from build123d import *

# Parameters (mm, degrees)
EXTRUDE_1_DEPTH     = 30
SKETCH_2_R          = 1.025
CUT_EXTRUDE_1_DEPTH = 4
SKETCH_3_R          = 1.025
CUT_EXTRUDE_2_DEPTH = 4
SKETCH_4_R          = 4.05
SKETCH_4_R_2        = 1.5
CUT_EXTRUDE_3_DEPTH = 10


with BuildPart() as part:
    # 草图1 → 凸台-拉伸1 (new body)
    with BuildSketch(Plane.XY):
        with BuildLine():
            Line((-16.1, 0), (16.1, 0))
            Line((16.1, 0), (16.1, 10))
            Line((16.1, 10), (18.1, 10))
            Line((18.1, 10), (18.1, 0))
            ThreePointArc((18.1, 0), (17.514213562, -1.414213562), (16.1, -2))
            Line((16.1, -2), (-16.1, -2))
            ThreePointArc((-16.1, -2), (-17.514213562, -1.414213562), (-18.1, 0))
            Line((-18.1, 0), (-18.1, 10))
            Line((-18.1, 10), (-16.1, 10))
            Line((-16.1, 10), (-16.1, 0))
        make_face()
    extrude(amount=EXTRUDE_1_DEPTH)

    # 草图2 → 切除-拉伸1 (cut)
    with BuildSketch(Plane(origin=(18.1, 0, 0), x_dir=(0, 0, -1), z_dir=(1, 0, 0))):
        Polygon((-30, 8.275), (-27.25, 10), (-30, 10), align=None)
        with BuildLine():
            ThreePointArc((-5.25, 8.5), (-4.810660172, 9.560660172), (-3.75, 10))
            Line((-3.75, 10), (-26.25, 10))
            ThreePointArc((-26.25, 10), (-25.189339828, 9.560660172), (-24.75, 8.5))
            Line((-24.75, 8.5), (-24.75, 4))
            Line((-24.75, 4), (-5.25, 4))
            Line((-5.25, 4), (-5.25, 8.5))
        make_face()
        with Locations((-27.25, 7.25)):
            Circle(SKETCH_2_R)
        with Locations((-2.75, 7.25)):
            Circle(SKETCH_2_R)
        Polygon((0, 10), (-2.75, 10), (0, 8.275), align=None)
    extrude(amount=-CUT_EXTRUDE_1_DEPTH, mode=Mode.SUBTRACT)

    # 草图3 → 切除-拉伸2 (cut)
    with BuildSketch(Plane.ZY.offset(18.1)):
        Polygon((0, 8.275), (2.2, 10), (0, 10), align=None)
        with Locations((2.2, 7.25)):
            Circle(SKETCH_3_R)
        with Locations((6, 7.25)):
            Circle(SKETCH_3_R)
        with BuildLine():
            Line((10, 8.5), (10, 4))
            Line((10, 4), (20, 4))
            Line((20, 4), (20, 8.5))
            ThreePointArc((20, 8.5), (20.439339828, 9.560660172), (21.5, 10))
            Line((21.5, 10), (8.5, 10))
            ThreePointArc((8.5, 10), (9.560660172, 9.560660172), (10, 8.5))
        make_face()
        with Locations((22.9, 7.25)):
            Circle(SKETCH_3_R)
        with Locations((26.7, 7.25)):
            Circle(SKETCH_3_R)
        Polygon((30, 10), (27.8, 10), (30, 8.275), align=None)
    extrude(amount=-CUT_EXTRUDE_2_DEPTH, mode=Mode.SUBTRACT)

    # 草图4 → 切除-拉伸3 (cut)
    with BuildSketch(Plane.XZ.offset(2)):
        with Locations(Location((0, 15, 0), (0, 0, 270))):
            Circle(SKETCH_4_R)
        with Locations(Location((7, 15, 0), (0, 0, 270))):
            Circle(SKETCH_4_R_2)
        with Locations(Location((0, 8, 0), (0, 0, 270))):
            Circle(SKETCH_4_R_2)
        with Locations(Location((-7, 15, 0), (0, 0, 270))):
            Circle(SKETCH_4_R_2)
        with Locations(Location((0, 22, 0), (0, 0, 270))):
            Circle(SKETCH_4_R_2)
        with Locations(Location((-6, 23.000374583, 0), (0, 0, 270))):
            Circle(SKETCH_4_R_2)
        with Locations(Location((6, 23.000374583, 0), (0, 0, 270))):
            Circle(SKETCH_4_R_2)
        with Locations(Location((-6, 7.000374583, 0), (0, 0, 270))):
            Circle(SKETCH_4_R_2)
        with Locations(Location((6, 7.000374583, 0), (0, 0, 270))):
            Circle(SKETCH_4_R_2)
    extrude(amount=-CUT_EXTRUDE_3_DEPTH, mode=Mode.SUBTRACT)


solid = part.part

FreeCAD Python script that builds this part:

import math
import FreeCAD as App
import Part
import Sketcher

V = App.Vector
Q = App.Units.Quantity


def add_polygon(sketch, points):
    """Adds a closed chain of lines whose ends are joined by coincident constraints."""
    first, n = sketch.GeometryCount, len(points)
    for a, b in zip(points, points[1:] + points[:1]):
        sketch.addGeometry(Part.LineSegment(App.Vector(*a, 0), App.Vector(*b, 0)), False)
    for i in range(n):
        sketch.addConstraint(Sketcher.Constraint("Coincident", first + i, 2, first + (i + 1) % n, 1))

doc = App.newDocument("Part")
params = doc.addObject("Spreadsheet::Sheet", "Params")
for row, (alias, value) in enumerate([
    ("sketch1_radius", "2 mm"),
    ("sketch1_height", "10 mm"),
    ("sketch1_width", "32.2 mm"),
    ("pad1_length", "30 mm"),
    ("sketch2_radius", "1.5 mm"),
    ("sketch2_diameter", "2.05 mm"),
    ("sketch2_width", "4.5 mm"),
    ("sketch2_height", "22.5 mm"),
    ("pocket1_length", "4 mm"),
    ("sketch3_radius", "1.5 mm"),
    ("sketch3_diameter", "2.05 mm"),
    ("sketch3_height", "10 mm"),
    ("sketch3_width", "4.5 mm"),
    ("sketch3_height2", "2.2 mm"),
    ("pocket2_length", "4 mm"),
    ("sketch4_diameter", "3 mm"),
    ("sketch4_diameter2", "8.1 mm"),
    ("pocket3_length", "10 mm"),
], start=1):
    params.set(f"A{row}", alias)
    params.set(f"B{row}", "=" + value)
    params.setAlias(f"B{row}", alias)

body = doc.addObject("PartDesign::Body", "Body")

sketch1 = doc.addObject("Sketcher::SketchObject", "Sketch")
body.addObject(sketch1)
sketch1.AttachmentSupport = (doc.XY_Plane, [""])
sketch1.MapMode = "FlatFace"
sketch1.addGeometry(Part.LineSegment(V(16.1, 0, 0), V(-16.1, 0, 0)), False)
sketch1.addGeometry(Part.LineSegment(V(-16.1, 0, 0), V(-16.1, 10, 0)), False)
sketch1.addGeometry(Part.LineSegment(V(-16.1, 10, 0), V(-18.1, 10, 0)), False)
sketch1.addGeometry(Part.LineSegment(V(-18.1, 10, 0), V(-18.1, 0, 0)), False)
sketch1.addGeometry(Part.ArcOfCircle(Part.Circle(V(-16.1, 0, 0), V(0, 0, 1), 2), math.radians(-180), math.radians(-90)), False)
sketch1.addGeometry(Part.LineSegment(V(-16.1, -2, 0), V(16.1, -2, 0)), False)
sketch1.addGeometry(Part.ArcOfCircle(Part.Circle(V(16.1, 0, 0), V(0, 0, 1), 2), math.radians(-90), math.radians(0)), False)
sketch1.addGeometry(Part.LineSegment(V(18.1, 0, 0), V(18.1, 10, 0)), False)
sketch1.addGeometry(Part.LineSegment(V(18.1, 10, 0), V(16.1, 10, 0)), False)
sketch1.addGeometry(Part.LineSegment(V(16.1, 10, 0), V(16.1, 0, 0)), False)
sketch1.addConstraint(Sketcher.Constraint("Coincident", 0, 2, 1, 1))
sketch1.addConstraint(Sketcher.Constraint("Coincident", 1, 2, 2, 1))
sketch1.addConstraint(Sketcher.Constraint("Coincident", 2, 2, 3, 1))
sketch1.addConstraint(Sketcher.Constraint("Tangent", 3, 2, 4, 1))
sketch1.addConstraint(Sketcher.Constraint("Tangent", 4, 2, 5, 1))
sketch1.addConstraint(Sketcher.Constraint("Tangent", 5, 2, 6, 1))
sketch1.addConstraint(Sketcher.Constraint("Tangent", 6, 2, 7, 1))
sketch1.addConstraint(Sketcher.Constraint("Coincident", 7, 2, 8, 1))
sketch1.addConstraint(Sketcher.Constraint("Coincident", 8, 2, 9, 1))
sketch1.addConstraint(Sketcher.Constraint("Coincident", 9, 2, 0, 1))
sketch1.addConstraint(Sketcher.Constraint("Horizontal", 0))
sketch1.addConstraint(Sketcher.Constraint("Vertical", 1))
sketch1.addConstraint(Sketcher.Constraint("Horizontal", 2))
sketch1.addConstraint(Sketcher.Constraint("Vertical", 3))
sketch1.addConstraint(Sketcher.Constraint("Horizontal", 5))
sketch1.addConstraint(Sketcher.Constraint("Vertical", 7))
sketch1.addConstraint(Sketcher.Constraint("Horizontal", 8))
sketch1.addConstraint(Sketcher.Constraint("Vertical", 9))
sketch1.addConstraint(Sketcher.Constraint("Coincident", 0, 2, 4, 3))
sketch1.addConstraint(Sketcher.Constraint("Coincident", 9, 2, 6, 3))
sketch1.addConstraint(Sketcher.Constraint("Symmetric", 4, 3, 6, 3, -1, 1))
sketch1.addConstraint(Sketcher.Constraint("Horizontal", 2, 2, 7, 2))
sketch1.addConstraint(Sketcher.Constraint("Radius", 4, Q("2 mm")))
sketch1.addConstraint(Sketcher.Constraint("DistanceY", 1, 1, 1, 2, Q("10 mm")))
sketch1.addConstraint(Sketcher.Constraint("DistanceX", 0, 2, 0, 1, Q("32.2 mm")))
sketch1.setExpression("Constraints[22]", "Params.sketch1_radius")
sketch1.setExpression("Constraints[23]", "Params.sketch1_height")
sketch1.setExpression("Constraints[24]", "Params.sketch1_width")
pad1 = doc.addObject("PartDesign::Pad", "Pad")
body.addObject(pad1)
pad1.Profile = sketch1
pad1.setExpression("Length", "Params.pad1_length")

sketch2 = doc.addObject("Sketcher::SketchObject", "Sketch001")
body.addObject(sketch2)
sketch2.AttachmentSupport = (doc.YZ_Plane, [""])
sketch2.MapMode = "FlatFace"
sketch2.AttachmentOffset = App.Placement(V(0, 0, 18.1), App.Rotation())
add_polygon(sketch2, [(8.3, 30), (10, 27.2), (10, 30)])
sketch2.addGeometry(Part.ArcOfCircle(Part.Circle(V(8.5, 3.8, 0), V(0, 0, 1), 1.5), math.radians(0), math.radians(90)), False)
sketch2.addGeometry(Part.LineSegment(V(10, 3.8, 0), V(10, 26.2, 0)), False)
sketch2.addGeometry(Part.ArcOfCircle(Part.Circle(V(8.5, 26.2, 0), V(0, 0, 1), 1.5), math.radians(-90), math.radians(0)), False)
sketch2.addGeometry(Part.LineSegment(V(8.5, 24.8, 0), V(4, 24.8, 0)), False)
sketch2.addGeometry(Part.LineSegment(V(4, 24.8, 0), V(4, 5.2, 0)), False)
sketch2.addGeometry(Part.LineSegment(V(4, 5.2, 0), V(8.5, 5.2, 0)), False)
sketch2.addGeometry(Part.Circle(V(7.2, 27.2, 0), V(0, 0, 1), 1), False)
sketch2.addGeometry(Part.Circle(V(7.2, 2.8, 0), V(0, 0, 1), 1), False)
add_polygon(sketch2, [(10, 0), (10, 2.8), (8.3, 0)])
sketch2.addConstraint(Sketcher.Constraint("Tangent", 3, 1, 4, 1))
sketch2.addConstraint(Sketcher.Constraint("Tangent", 4, 2, 5, 2))
sketch2.addConstraint(Sketcher.Constraint("Tangent", 5, 1, 6, 1))
sketch2.addConstraint(Sketcher.Constraint("Coincident", 6, 2, 7, 1))
sketch2.addConstraint(Sketcher.Constraint("Coincident", 7, 2, 8, 1))
sketch2.addConstraint(Sketcher.Constraint("Tangent", 8, 2, 3, 2))
sketch2.addConstraint(Sketcher.Constraint("Vertical", 1))
sketch2.addConstraint(Sketcher.Constraint("Horizontal", 2))
sketch2.addConstraint(Sketcher.Constraint("Vertical", 4))
sketch2.addConstraint(Sketcher.Constraint("Horizontal", 6))
sketch2.addConstraint(Sketcher.Constraint("Vertical", 7))
sketch2.addConstraint(Sketcher.Constraint("Horizontal", 8))
sketch2.addConstraint(Sketcher.Constraint("Vertical", 11))
sketch2.addConstraint(Sketcher.Constraint("Horizontal", 13))
sketch2.addConstraint(Sketcher.Constraint("Equal", 3, 5))
sketch2.addConstraint(Sketcher.Constraint("Equal", 9, 10))
sketch2.addConstraint(Sketcher.Constraint("PointOnObject", 12, 2, -1))
sketch2.addConstraint(Sketcher.Constraint("Horizontal", 9, 3, 0, 2))
sketch2.addConstraint(Sketcher.Constraint("Horizontal", 10, 3, 11, 2))
sketch2.addConstraint(Sketcher.Constraint("Vertical", 9, 3, 10, 3))
sketch2.addConstraint(Sketcher.Constraint("Vertical", 1, 2, 3, 1))
sketch2.addConstraint(Sketcher.Constraint("Vertical", 4, 2, 11, 2))
sketch2.addConstraint(Sketcher.Constraint("Vertical", 2, 2, 12, 2))
sketch2.addConstraint(Sketcher.Constraint("Equal", 1, 11))
sketch2.addConstraint(Sketcher.Constraint("Radius", 3, Q("1.5 mm")))
sketch2.addConstraint(Sketcher.Constraint("Diameter", 9, Q("2.05 mm")))
sketch2.addConstraint(Sketcher.Constraint("DistanceX", 6, 2, 6, 1, Q("4.5 mm")))
sketch2.addConstraint(Sketcher.Constraint("DistanceY", 4, 1, 4, 2, Q("22.5 mm")))
sketch2.addConstraint(Sketcher.Constraint("DistanceX", -1, 1, 0, 2, Q("10 mm")))
sketch2.addConstraint(Sketcher.Constraint("DistanceY", -1, 1, 1, 2, Q("30 mm")))
sketch2.addConstraint(Sketcher.Constraint("DistanceY", 5, 3, 9, 3, Q("1 mm")))
sketch2.addConstraint(Sketcher.Constraint("DistanceY", 10, 3, 3, 3, Q("1 mm")))
sketch2.addConstraint(Sketcher.Constraint("DistanceX", 2, 2, 2, 1, Q("1.725 mm")))
sketch2.addConstraint(Sketcher.Constraint("DistanceX", -1, 1, 9, 3, Q("7.25 mm")))
sketch2.setExpression("Constraints[30]", "Params.sketch2_radius")
sketch2.setExpression("Constraints[31]", "Params.sketch2_diameter")
sketch2.setExpression("Constraints[32]", "Params.sketch2_width")
sketch2.setExpression("Constraints[33]", "Params.sketch2_height")
pocket1 = doc.addObject("PartDesign::Pocket", "Pocket")
body.addObject(pocket1)
pocket1.Profile = sketch2
pocket1.setExpression("Length", "Params.pocket1_length")

sketch3 = doc.addObject("Sketcher::SketchObject", "Sketch002")
body.addObject(sketch3)
sketch3.AttachmentSupport = (doc.YZ_Plane, [""])
sketch3.MapMode = "FlatFace"
sketch3.AttachmentOffset = App.Placement(V(0, 0, -18.1), App.Rotation())
add_polygon(sketch3, [(8.3, 0), (10, 2.2), (10, 0)])
sketch3.addGeometry(Part.Circle(V(7.2, 2.2, 0), V(0, 0, 1), 1), False)
sketch3.addGeometry(Part.Circle(V(7.2, 6, 0), V(0, 0, 1), 1), False)
sketch3.addGeometry(Part.LineSegment(V(8.5, 10, 0), V(4, 10, 0)), False)
sketch3.addGeometry(Part.LineSegment(V(4, 10, 0), V(4, 20, 0)), False)
sketch3.addGeometry(Part.LineSegment(V(4, 20, 0), V(8.5, 20, 0)), False)
sketch3.addGeometry(Part.ArcOfCircle(Part.Circle(V(8.5, 21.5, 0), V(0, 0, 1), 1.5), math.radians(-90), math.radians(0)), False)
sketch3.addGeometry(Part.LineSegment(V(10, 21.5, 0), V(10, 8.5, 0)), False)
sketch3.addGeometry(Part.ArcOfCircle(Part.Circle(V(8.5, 8.5, 0), V(0, 0, 1), 1.5), math.radians(0), math.radians(90)), False)
sketch3.addGeometry(Part.Circle(V(7.2, 22.9, 0), V(0, 0, 1), 1), False)
sketch3.addGeometry(Part.Circle(V(7.2, 26.7, 0), V(0, 0, 1), 1), False)
add_polygon(sketch3, [(10, 30), (10, 27.8), (8.3, 30)])
sketch3.addConstraint(Sketcher.Constraint("Coincident", 5, 2, 6, 1))
sketch3.addConstraint(Sketcher.Constraint("Coincident", 6, 2, 7, 1))
sketch3.addConstraint(Sketcher.Constraint("Tangent", 7, 2, 8, 1))
sketch3.addConstraint(Sketcher.Constraint("Tangent", 8, 2, 9, 1))
sketch3.addConstraint(Sketcher.Constraint("Tangent", 9, 2, 10, 1))
sketch3.addConstraint(Sketcher.Constraint("Tangent", 10, 2, 5, 1))
sketch3.addConstraint(Sketcher.Constraint("Vertical", 1))
sketch3.addConstraint(Sketcher.Constraint("Horizontal", 2))
sketch3.addConstraint(Sketcher.Constraint("Horizontal", 5))
sketch3.addConstraint(Sketcher.Constraint("Vertical", 6))
sketch3.addConstraint(Sketcher.Constraint("Horizontal", 7))
sketch3.addConstraint(Sketcher.Constraint("Vertical", 9))
sketch3.addConstraint(Sketcher.Constraint("Vertical", 13))
sketch3.addConstraint(Sketcher.Constraint("Horizontal", 15))
sketch3.addConstraint(Sketcher.Constraint("Equal", 3, 4))
sketch3.addConstraint(Sketcher.Constraint("Equal", 8, 10))
sketch3.addConstraint(Sketcher.Constraint("Equal", 4, 11))
sketch3.addConstraint(Sketcher.Constraint("Equal", 11, 12))
sketch3.addConstraint(Sketcher.Constraint("PointOnObject", 1, 2, -1))
sketch3.addConstraint(Sketcher.Constraint("Horizontal", 3, 3, 0, 2))
sketch3.addConstraint(Sketcher.Constraint("Vertical", 3, 3, 4, 3))
sketch3.addConstraint(Sketcher.Constraint("Vertical", 4, 3, 11, 3))
sketch3.addConstraint(Sketcher.Constraint("Vertical", 11, 3, 12, 3))
sketch3.addConstraint(Sketcher.Constraint("Vertical", 1, 2, 8, 2))
sketch3.addConstraint(Sketcher.Constraint("Vertical", 9, 2, 13, 2))
sketch3.addConstraint(Sketcher.Constraint("Vertical", 2, 2, 14, 2))
sketch3.addConstraint(Sketcher.Constraint("Equal", 1, 13))
sketch3.addConstraint(Sketcher.Constraint("Radius", 8, Q("1.5 mm")))
sketch3.addConstraint(Sketcher.Constraint("Diameter", 3, Q("2.05 mm")))
sketch3.addConstraint(Sketcher.Constraint("DistanceY", 6, 1, 6, 2, Q("10 mm")))
sketch3.addConstraint(Sketcher.Constraint("DistanceX", 5, 2, 5, 1, Q("4.5 mm")))
sketch3.addConstraint(Sketcher.Constraint("DistanceY", 1, 2, 1, 1, Q("2.2 mm")))
sketch3.addConstraint(Sketcher.Constraint("DistanceY", -1, 1, 4, 3, Q("6 mm")))
sketch3.addConstraint(Sketcher.Constraint("DistanceX", -1, 1, 0, 2, Q("10 mm")))
sketch3.addConstraint(Sketcher.Constraint("DistanceY", -1, 1, 5, 2, Q("10 mm")))
sketch3.addConstraint(Sketcher.Constraint("DistanceY", -1, 1, 14, 2, Q("30 mm")))
sketch3.addConstraint(Sketcher.Constraint("DistanceY", -1, 1, 11, 3, Q("22.9 mm")))
sketch3.addConstraint(Sketcher.Constraint("DistanceY", -1, 1, 12, 3, Q("26.7 mm")))
sketch3.addConstraint(Sketcher.Constraint("DistanceX", 2, 2, 2, 1, Q("1.725 mm")))
sketch3.addConstraint(Sketcher.Constraint("DistanceX", -1, 1, 3, 3, Q("7.25 mm")))
sketch3.setExpression("Constraints[33]", "Params.sketch3_radius")
sketch3.setExpression("Constraints[34]", "Params.sketch3_diameter")
sketch3.setExpression("Constraints[35]", "Params.sketch3_height")
sketch3.setExpression("Constraints[36]", "Params.sketch3_width")
sketch3.setExpression("Constraints[37]", "Params.sketch3_height2")
pocket2 = doc.addObject("PartDesign::Pocket", "Pocket001")
body.addObject(pocket2)
pocket2.Profile = sketch3
pocket2.setExpression("Length", "Params.pocket2_length")
pocket2.Reversed = True

sketch4 = doc.addObject("Sketcher::SketchObject", "Sketch003")
body.addObject(sketch4)
sketch4.AttachmentSupport = (doc.XZ_Plane, [""])
sketch4.MapMode = "FlatFace"
sketch4.AttachmentOffset = App.Placement(V(0, 0, 2), App.Rotation())
sketch4.addGeometry(Part.Circle(V(0, 15, 0), V(0, 0, 1), 4), False)
sketch4.addGeometry(Part.Circle(V(7, 15, 0), V(0, 0, 1), 1.5), False)
sketch4.addGeometry(Part.Circle(V(0, 8, 0), V(0, 0, 1), 1.5), False)
sketch4.addGeometry(Part.Circle(V(-7, 15, 0), V(0, 0, 1), 1.5), False)
sketch4.addGeometry(Part.Circle(V(0, 22, 0), V(0, 0, 1), 1.5), False)
sketch4.addGeometry(Part.Circle(V(-6, 23, 0), V(0, 0, 1), 1.5), False)
sketch4.addGeometry(Part.Circle(V(6, 23, 0), V(0, 0, 1), 1.5), False)
sketch4.addGeometry(Part.Circle(V(-6, 7, 0), V(0, 0, 1), 1.5), False)
sketch4.addGeometry(Part.Circle(V(6, 7, 0), V(0, 0, 1), 1.5), False)
sketch4.addConstraint(Sketcher.Constraint("Equal", 1, 2))
sketch4.addConstraint(Sketcher.Constraint("Equal", 2, 3))
sketch4.addConstraint(Sketcher.Constraint("Equal", 3, 4))
sketch4.addConstraint(Sketcher.Constraint("Equal", 4, 5))
sketch4.addConstraint(Sketcher.Constraint("Equal", 5, 6))
sketch4.addConstraint(Sketcher.Constraint("Equal", 6, 7))
sketch4.addConstraint(Sketcher.Constraint("Equal", 7, 8))
sketch4.addConstraint(Sketcher.Constraint("Symmetric", 1, 3, 3, 3, -2))
sketch4.addConstraint(Sketcher.Constraint("Symmetric", 5, 3, 6, 3, -2))
sketch4.addConstraint(Sketcher.Constraint("Symmetric", 7, 3, 8, 3, -2))
sketch4.addConstraint(Sketcher.Constraint("PointOnObject", 0, 3, -2))
sketch4.addConstraint(Sketcher.Constraint("PointOnObject", 2, 3, -2))
sketch4.addConstraint(Sketcher.Constraint("PointOnObject", 4, 3, -2))
sketch4.addConstraint(Sketcher.Constraint("Horizontal", 0, 3, 1, 3))
sketch4.addConstraint(Sketcher.Constraint("Vertical", 5, 3, 7, 3))
sketch4.addConstraint(Sketcher.Constraint("Diameter", 1, Q("3 mm")))
sketch4.addConstraint(Sketcher.Constraint("Diameter", 0, Q("8.1 mm")))
sketch4.addConstraint(Sketcher.Constraint("DistanceY", -1, 1, 0, 3, Q("15 mm")))
sketch4.addConstraint(Sketcher.Constraint("DistanceX", -1, 1, 1, 3, Q("7 mm")))
sketch4.addConstraint(Sketcher.Constraint("DistanceY", -1, 1, 2, 3, Q("8 mm")))
sketch4.addConstraint(Sketcher.Constraint("DistanceY", -1, 1, 4, 3, Q("22 mm")))
sketch4.addConstraint(Sketcher.Constraint("DistanceX", 5, 3, -1, 1, Q("6 mm")))
sketch4.addConstraint(Sketcher.Constraint("DistanceY", 7, 3, 5, 3, Q("16 mm")))
sketch4.addConstraint(Sketcher.Constraint("DistanceY", -1, 1, 5, 3, Q("23.000375 mm")))
sketch4.setExpression("Constraints[15]", "Params.sketch4_diameter")
sketch4.setExpression("Constraints[16]", "Params.sketch4_diameter2")
pocket3 = doc.addObject("PartDesign::Pocket", "Pocket002")
body.addObject(pocket3)
pocket3.Profile = sketch4
pocket3.setExpression("Length", "Params.pocket3_length")

doc.recompute()
